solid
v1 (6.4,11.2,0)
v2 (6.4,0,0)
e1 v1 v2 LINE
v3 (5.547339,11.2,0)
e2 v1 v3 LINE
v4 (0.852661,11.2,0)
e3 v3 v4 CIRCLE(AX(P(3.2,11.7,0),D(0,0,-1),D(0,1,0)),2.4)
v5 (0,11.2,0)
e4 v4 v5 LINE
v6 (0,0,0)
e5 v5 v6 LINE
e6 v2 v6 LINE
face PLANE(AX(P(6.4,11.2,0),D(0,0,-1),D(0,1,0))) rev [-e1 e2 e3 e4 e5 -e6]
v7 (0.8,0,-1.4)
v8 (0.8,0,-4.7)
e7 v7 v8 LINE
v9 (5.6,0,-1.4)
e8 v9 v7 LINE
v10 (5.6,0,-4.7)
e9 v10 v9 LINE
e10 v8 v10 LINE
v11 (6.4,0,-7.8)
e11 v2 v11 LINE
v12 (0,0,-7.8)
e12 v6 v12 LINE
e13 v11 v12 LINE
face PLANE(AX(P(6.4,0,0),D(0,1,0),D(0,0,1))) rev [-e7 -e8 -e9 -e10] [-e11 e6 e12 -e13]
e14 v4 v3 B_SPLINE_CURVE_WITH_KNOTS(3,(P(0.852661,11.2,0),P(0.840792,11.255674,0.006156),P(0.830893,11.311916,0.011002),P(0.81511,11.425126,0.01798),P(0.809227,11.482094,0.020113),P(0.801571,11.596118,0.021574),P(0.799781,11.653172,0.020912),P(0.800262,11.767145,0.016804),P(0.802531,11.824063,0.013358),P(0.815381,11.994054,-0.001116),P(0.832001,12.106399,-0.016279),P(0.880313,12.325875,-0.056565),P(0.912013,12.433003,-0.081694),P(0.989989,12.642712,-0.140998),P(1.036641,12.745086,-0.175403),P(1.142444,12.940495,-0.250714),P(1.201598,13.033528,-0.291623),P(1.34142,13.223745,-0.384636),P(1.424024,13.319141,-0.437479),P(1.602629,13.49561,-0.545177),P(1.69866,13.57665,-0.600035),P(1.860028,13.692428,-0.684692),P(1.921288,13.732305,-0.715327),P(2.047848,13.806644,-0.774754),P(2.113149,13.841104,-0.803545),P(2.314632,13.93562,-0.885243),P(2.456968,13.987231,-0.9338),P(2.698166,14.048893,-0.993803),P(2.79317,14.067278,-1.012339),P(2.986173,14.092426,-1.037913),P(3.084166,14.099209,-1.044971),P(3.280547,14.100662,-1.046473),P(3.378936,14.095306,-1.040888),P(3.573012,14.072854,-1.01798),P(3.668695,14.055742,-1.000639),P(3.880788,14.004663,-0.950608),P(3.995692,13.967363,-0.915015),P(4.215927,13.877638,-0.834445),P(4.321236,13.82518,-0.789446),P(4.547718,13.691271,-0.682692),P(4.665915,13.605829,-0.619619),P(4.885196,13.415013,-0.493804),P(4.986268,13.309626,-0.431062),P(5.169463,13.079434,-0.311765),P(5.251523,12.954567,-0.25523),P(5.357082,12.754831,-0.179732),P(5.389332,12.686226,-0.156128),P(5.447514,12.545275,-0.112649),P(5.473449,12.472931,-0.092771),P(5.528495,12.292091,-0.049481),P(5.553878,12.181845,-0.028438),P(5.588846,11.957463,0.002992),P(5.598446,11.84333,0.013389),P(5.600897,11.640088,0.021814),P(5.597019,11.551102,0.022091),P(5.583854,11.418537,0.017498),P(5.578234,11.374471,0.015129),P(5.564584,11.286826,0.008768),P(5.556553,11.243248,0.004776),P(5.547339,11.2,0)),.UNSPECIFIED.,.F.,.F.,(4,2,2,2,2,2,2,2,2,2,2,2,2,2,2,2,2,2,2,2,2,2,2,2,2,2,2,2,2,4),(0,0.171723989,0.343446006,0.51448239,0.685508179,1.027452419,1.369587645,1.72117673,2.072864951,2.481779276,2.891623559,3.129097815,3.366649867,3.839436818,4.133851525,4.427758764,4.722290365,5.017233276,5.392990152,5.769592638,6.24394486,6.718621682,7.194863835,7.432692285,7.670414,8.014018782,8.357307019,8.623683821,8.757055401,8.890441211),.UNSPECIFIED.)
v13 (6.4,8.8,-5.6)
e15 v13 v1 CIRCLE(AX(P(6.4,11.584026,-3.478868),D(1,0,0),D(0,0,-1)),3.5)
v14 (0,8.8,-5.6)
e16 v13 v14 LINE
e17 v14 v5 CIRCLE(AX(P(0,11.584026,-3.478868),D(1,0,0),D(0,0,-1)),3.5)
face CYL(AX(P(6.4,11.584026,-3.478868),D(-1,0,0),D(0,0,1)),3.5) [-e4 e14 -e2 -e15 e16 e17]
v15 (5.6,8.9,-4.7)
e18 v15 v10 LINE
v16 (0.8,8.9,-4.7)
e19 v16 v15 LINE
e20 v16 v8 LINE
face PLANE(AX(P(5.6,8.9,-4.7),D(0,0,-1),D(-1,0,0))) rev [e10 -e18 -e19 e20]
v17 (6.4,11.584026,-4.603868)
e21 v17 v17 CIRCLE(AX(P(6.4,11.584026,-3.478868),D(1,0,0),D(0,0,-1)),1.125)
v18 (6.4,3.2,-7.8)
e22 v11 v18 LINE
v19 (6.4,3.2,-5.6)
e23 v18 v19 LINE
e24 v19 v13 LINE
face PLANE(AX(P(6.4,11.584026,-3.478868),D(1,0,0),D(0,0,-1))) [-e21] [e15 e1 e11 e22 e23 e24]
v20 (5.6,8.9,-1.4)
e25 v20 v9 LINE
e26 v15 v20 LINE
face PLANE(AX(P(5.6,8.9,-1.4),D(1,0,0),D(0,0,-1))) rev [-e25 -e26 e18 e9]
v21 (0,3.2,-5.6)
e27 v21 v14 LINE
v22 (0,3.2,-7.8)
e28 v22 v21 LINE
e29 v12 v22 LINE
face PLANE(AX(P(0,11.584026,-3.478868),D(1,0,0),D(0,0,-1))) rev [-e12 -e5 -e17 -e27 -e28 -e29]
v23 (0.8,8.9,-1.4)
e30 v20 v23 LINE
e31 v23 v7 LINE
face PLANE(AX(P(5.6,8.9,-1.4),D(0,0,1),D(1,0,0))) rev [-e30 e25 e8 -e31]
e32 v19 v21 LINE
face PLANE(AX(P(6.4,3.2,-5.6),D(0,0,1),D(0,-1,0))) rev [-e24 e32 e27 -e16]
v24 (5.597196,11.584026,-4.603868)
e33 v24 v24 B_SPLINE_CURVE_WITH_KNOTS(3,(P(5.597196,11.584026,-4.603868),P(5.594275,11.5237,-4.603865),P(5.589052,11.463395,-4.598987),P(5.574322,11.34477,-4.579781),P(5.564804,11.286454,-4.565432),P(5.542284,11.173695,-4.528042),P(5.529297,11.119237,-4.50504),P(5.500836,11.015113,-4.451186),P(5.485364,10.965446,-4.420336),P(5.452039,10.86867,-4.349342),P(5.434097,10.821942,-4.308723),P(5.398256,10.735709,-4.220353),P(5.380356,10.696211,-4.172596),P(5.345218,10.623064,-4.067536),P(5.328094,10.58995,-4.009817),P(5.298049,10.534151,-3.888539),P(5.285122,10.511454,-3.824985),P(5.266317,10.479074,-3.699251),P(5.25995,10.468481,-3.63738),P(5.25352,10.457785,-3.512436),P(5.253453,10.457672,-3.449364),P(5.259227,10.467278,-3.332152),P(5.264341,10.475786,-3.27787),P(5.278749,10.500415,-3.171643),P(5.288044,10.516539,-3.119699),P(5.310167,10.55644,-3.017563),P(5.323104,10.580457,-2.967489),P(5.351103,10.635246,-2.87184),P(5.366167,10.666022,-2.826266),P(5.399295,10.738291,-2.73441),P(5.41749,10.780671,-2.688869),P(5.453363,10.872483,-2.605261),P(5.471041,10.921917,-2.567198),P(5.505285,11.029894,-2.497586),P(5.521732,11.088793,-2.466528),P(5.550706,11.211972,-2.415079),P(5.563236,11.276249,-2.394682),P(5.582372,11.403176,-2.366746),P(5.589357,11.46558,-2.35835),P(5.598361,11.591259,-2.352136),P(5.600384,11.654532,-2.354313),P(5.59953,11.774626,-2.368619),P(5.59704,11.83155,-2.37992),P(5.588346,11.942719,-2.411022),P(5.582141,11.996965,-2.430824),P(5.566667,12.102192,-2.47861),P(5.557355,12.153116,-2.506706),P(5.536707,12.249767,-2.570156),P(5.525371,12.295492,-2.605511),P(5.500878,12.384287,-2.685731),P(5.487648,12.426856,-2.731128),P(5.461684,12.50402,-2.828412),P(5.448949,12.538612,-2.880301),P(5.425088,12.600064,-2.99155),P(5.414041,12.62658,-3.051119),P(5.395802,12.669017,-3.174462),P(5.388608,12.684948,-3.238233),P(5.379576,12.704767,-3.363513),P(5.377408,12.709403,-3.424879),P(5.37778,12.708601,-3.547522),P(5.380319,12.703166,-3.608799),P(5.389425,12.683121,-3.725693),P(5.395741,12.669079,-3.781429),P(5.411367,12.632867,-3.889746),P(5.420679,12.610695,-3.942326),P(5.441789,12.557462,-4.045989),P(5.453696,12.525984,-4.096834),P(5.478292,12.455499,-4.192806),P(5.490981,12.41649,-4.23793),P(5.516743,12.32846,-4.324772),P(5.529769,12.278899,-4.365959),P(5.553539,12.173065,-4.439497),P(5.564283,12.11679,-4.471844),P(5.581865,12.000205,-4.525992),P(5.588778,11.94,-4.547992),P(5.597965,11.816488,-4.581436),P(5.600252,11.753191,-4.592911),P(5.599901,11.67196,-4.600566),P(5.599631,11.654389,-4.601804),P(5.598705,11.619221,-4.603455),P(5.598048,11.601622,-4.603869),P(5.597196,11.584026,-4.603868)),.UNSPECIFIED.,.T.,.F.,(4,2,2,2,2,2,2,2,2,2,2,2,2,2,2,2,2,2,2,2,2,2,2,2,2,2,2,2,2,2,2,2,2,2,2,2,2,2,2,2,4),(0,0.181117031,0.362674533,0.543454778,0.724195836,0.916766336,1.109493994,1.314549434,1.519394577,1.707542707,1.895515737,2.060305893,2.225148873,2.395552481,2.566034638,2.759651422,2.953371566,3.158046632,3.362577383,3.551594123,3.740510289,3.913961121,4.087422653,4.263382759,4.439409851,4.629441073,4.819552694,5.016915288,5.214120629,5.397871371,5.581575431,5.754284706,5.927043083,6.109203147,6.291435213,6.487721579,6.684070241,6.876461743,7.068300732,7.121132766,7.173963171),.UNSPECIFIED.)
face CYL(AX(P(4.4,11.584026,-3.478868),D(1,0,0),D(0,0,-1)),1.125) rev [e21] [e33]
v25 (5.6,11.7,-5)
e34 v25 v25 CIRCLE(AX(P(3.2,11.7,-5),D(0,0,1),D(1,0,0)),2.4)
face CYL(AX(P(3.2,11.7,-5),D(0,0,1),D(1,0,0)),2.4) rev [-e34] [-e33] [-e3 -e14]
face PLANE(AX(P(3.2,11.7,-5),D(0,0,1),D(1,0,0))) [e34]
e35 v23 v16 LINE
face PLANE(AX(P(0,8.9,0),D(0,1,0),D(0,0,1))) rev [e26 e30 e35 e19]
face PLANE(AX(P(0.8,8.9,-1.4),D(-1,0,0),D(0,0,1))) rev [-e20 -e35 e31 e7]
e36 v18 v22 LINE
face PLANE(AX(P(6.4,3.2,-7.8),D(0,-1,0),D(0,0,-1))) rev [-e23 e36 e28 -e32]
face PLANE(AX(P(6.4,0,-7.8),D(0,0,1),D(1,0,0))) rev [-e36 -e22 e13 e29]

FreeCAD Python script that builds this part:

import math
import FreeCAD as App
import Part
import Sketcher
from FreeCAD import Vector


def add_polygon(sketch, points):
    """Adds a closed chain of lines whose ends are joined by coincident constraints."""
    first, n = sketch.GeometryCount, len(points)
    for a, b in zip(points, points[1:] + points[:1]):
        sketch.addGeometry(Part.LineSegment(App.Vector(*a, 0), App.Vector(*b, 0)), False)
    for i in range(n):
        sketch.addConstraint(Sketcher.Constraint("Coincident", first + i, 2, first + (i + 1) % n, 1))

doc = App.newDocument("Part")
body = doc.addObject("PartDesign::Body", "Body")

# Sketch on YZ plane
sketch1 = doc.addObject("Sketcher::SketchObject", "Sketch")
body.addObject(sketch1)
sketch1.AttachmentSupport = (doc.YZ_Plane, [""])
sketch1.MapMode = "FlatFace"
sketch1.addGeometry(Part.LineSegment(Vector(0, 0, 0), Vector(0, -7.8, 0)), False)
sketch1.addGeometry(Part.LineSegment(Vector(0, -7.8, 0), Vector(3.2, -7.8, 0)), False)
sketch1.addGeometry(Part.LineSegment(Vector(3.2, -7.8, 0), Vector(3.2, -5.6, 0)), False)
sketch1.addGeometry(Part.LineSegment(Vector(3.2, -5.6, 0), Vector(8.8, -5.6, 0)), False)
sketch1.addGeometry(Part.ArcOfCircle(Part.Circle(Vector(11.6, -3.5, 0), Vector(0, 0, 1), 3.5), math.radians(-143), math.radians(96)), False)
sketch1.addGeometry(Part.LineSegment(Vector(11.2, 0, 0), Vector(0, 0, 0)), False)
sketch1.addConstraint(Sketcher.Constraint("Coincident", 0, 2, 1, 1))
sketch1.addConstraint(Sketcher.Constraint("Coincident", 1, 2, 2, 1))
sketch1.addConstraint(Sketcher.Constraint("Coincident", 2, 2, 3, 1))
sketch1.addConstraint(Sketcher.Constraint("Coincident", 3, 2, 4, 1))
sketch1.addConstraint(Sketcher.Constraint("Coincident", 4, 2, 5, 1))
sketch1.addConstraint(Sketcher.Constraint("Coincident", 5, 2, 0, 1))
sketch1.addConstraint(Sketcher.Constraint("Vertical", 0))
sketch1.addConstraint(Sketcher.Constraint("Horizontal", 1))
sketch1.addConstraint(Sketcher.Constraint("Vertical", 2))
sketch1.addConstraint(Sketcher.Constraint("Horizontal", 3))
sketch1.addConstraint(Sketcher.Constraint("Horizontal", 5))
sketch1.addConstraint(Sketcher.Constraint("Coincident", 5, 2, -1, 1))
sketch1.addConstraint(Sketcher.Constraint("Radius", 4, 3.5))
sketch1.addConstraint(Sketcher.Constraint("DistanceX", 1, 1, 1, 2, 3.2))
sketch1.addConstraint(Sketcher.Constraint("DistanceX", 3, 1, 3, 2, 5.6))
sketch1.addConstraint(Sketcher.Constraint("DistanceX", 5, 2, 5, 1, 11.2))
sketch1.addConstraint(Sketcher.Constraint("DistanceY", 0, 2, 0, 1, 7.8))
sketch1.addConstraint(Sketcher.Constraint("DistanceY", 2, 1, 2, 2, 2.2))
pad1 = doc.addObject("PartDesign::Pad", "Pad")
body.addObject(pad1)
pad1.Profile = sketch1
pad1.Length = 6.4

# Sketch on YZ plane
sketch2 = doc.addObject("Sketcher::SketchObject", "Sketch001")
body.addObject(sketch2)
sketch2.AttachmentSupport = (doc.YZ_Plane, [""])
sketch2.MapMode = "FlatFace"
sketch2.AttachmentOffset = App.Placement(Vector(0, 0, 6.4), App.Rotation())
sketch2.addGeometry(Part.Circle(Vector(11.6, -3.5, 0), Vector(0, 0, 1), 1.1), False)
sketch2.addConstraint(Sketcher.Constraint("Diameter", 0, 2.25))
sketch2.addConstraint(Sketcher.Constraint("DistanceY", 0, 3, -1, 1, 3.478868))
sketch2.addConstraint(Sketcher.Constraint("DistanceX", -1, 1, 0, 3, 11.584026))
pocket1 = doc.addObject("PartDesign::Pocket", "Pocket")
body.addObject(pocket1)
pocket1.Profile = sketch2
pocket1.Length = 2

# Sketch on XY plane
sketch3 = doc.addObject("Sketcher::SketchObject", "Sketch002")
body.addObject(sketch3)
sketch3.AttachmentSupport = (doc.XY_Plane, [""])
sketch3.MapMode = "FlatFace"
sketch3.addGeometry(Part.Circle(Vector(3.2, 11.7, 0), Vector(0, 0, 1), 2.4), False)
sketch3.addConstraint(Sketcher.Constraint("Diameter", 0, 4.8))
sketch3.addConstraint(Sketcher.Constraint("DistanceX", -1, 1, 0, 3, 3.2))
sketch3.addConstraint(Sketcher.Constraint("DistanceY", -1, 1, 0, 3, 11.7))
pocket2 = doc.addObject("PartDesign::Pocket", "Pocket001")
body.addObject(pocket2)
pocket2.Profile = sketch3
pocket2.Length = 10
pocket2.Midplane = True

# Sketch on XZ plane
sketch4 = doc.addObject("Sketcher::SketchObject", "Sketch003")
body.addObject(sketch4)
sketch4.AttachmentSupport = (doc.XZ_Plane, [""])
sketch4.MapMode = "FlatFace"
add_polygon(sketch4, [(0.8, -1.4), (0.8, -4.7), (5.6, -4.7), (5.6, -1.4)])  # lines 0-3
sketch4.addConstraint(Sketcher.Constraint("Vertical", 0))
sketch4.addConstraint(Sketcher.Constraint("Horizontal", 1))
sketch4.addConstraint(Sketcher.Constraint("Vertical", 2))
sketch4.addConstraint(Sketcher.Constraint("Horizontal", 3))
sketch4.addConstraint(Sketcher.Constraint("DistanceX", 1, 1, 1, 2, 4.8))
sketch4.addConstraint(Sketcher.Constraint("DistanceY", 0, 2, 0, 1, 3.3))
sketch4.addConstraint(Sketcher.Constraint("DistanceX", -1, 1, 0, 2, 0.8))
sketch4.addConstraint(Sketcher.Constraint("DistanceY", 0, 2, -1, 1, 4.7))
pocket3 = doc.addObject("PartDesign::Pocket", "Pocket002")
body.addObject(pocket3)
pocket3.Profile = sketch4
pocket3.Length = 8.9

doc.recompute()
